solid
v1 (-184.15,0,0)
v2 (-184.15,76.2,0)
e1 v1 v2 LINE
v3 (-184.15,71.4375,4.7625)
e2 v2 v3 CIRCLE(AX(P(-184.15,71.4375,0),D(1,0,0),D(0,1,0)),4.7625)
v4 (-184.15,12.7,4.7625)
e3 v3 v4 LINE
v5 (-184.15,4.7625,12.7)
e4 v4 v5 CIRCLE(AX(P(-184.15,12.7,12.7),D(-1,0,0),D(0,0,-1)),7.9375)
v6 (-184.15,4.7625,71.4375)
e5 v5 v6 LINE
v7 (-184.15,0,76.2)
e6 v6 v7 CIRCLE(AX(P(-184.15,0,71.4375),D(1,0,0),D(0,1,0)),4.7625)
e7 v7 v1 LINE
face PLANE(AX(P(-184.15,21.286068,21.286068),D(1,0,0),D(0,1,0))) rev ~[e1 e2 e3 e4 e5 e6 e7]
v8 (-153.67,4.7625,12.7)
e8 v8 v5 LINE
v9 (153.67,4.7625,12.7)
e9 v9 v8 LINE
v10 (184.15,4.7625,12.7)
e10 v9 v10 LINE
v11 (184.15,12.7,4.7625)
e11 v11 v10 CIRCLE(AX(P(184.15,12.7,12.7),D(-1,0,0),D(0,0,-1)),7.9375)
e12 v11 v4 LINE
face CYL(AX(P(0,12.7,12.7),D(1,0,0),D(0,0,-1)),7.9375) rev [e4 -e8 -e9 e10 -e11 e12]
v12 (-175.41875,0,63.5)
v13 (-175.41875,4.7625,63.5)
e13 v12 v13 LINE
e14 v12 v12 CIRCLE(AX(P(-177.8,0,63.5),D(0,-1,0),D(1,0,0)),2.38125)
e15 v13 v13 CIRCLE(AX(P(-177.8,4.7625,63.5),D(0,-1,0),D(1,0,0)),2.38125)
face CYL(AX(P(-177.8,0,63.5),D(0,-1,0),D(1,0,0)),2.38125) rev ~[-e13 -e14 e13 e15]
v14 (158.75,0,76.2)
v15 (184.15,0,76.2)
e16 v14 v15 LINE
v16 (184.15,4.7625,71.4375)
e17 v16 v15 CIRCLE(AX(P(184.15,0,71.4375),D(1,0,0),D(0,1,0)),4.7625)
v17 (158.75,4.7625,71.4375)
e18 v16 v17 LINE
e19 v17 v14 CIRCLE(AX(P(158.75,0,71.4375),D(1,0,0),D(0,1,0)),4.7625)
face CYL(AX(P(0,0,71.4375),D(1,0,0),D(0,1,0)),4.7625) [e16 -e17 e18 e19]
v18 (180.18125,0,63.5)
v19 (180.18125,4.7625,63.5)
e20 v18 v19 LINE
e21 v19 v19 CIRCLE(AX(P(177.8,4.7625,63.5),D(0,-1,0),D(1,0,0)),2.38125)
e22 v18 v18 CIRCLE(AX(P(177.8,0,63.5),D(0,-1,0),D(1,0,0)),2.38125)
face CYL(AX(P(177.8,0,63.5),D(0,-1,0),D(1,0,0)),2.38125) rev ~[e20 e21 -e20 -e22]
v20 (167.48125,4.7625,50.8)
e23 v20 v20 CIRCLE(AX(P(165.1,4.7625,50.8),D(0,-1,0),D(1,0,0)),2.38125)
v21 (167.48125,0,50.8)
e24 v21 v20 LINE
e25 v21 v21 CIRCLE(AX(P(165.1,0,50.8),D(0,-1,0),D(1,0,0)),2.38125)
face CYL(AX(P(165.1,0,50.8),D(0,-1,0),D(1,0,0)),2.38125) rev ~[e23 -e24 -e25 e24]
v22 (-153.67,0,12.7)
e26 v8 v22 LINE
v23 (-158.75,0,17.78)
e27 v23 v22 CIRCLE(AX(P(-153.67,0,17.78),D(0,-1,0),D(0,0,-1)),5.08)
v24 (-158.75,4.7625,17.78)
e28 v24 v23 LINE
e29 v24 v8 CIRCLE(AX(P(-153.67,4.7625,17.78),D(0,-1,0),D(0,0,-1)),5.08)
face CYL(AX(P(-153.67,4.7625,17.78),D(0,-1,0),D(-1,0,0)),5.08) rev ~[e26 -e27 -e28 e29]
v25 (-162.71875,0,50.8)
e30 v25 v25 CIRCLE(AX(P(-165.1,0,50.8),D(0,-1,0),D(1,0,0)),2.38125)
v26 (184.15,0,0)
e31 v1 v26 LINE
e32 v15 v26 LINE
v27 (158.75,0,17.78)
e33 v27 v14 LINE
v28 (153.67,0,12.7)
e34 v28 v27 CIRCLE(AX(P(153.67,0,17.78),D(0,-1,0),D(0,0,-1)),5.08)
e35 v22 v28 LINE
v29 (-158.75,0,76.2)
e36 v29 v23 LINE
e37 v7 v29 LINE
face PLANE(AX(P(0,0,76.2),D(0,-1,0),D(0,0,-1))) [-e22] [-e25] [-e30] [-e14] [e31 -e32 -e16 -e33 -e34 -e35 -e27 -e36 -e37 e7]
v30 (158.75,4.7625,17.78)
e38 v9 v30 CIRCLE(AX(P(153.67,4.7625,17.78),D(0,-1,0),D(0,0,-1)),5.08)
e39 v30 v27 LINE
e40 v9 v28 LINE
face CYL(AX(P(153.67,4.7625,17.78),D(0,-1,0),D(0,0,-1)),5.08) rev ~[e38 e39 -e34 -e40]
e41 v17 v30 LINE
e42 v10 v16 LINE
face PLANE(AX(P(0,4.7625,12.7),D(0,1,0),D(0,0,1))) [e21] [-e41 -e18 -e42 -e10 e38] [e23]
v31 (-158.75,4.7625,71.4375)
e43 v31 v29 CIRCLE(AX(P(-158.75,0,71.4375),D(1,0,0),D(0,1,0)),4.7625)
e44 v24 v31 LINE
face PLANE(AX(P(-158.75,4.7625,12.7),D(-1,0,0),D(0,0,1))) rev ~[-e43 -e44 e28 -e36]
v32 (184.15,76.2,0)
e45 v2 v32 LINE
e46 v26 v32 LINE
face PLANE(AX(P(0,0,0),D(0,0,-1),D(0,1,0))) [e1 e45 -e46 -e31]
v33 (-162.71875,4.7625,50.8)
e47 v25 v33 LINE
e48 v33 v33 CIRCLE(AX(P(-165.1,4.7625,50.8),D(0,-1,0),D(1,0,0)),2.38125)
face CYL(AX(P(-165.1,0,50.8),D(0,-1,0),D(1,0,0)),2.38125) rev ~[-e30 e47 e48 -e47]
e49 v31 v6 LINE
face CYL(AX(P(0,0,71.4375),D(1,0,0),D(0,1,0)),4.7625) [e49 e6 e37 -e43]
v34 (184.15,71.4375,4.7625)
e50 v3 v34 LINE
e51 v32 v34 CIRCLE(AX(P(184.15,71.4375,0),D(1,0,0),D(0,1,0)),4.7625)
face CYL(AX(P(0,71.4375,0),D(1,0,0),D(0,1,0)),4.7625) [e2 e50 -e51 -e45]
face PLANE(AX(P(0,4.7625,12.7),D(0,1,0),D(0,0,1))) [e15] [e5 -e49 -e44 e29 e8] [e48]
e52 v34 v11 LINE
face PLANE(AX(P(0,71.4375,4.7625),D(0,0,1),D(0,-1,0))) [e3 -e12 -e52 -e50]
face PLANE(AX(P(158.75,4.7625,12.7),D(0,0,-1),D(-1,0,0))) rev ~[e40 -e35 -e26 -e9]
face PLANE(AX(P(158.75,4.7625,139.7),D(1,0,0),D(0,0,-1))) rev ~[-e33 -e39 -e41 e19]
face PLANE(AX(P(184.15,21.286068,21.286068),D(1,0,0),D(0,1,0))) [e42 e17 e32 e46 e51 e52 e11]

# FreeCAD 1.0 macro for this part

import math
import FreeCAD as App
import Part
import Sketcher
Q = App.Units.Quantity


def edges_at(feature, points):
    """Names of the edges that pass closest to the given points."""
    edges = feature.Shape.Edges
    near = lambda p: min(range(len(edges)), key=lambda i: edges[i].distToShape(Part.Vertex(*p))[0])
    return sorted({f"Edge{near(p) + 1}" for p in points})

doc = App.newDocument("Part")
body = doc.addObject("PartDesign::Body", "Body")

# Sketch on YZ plane
sketch1 = body.newObject("Sketcher::SketchObject", "Sketch")
sketch1.AttachmentSupport = (doc.getObject("YZ_Plane"), [""])
sketch1.MapMode = "FlatFace"
sketch1.addGeometry([
    Part.ArcOfCircle(Part.Circle(App.Vector(0, 71.4375, 0), App.Vector(0, 0, 1), 4.7625), math.radians(0), math.radians(90)),  # 0
    Part.LineSegment(App.Vector(0, 76.2, 0), App.Vector(0, 0, 0)),  # 1
    Part.LineSegment(App.Vector(0, 0, 0), App.Vector(76.2, 0, 0)),  # 2
    Part.ArcOfCircle(Part.Circle(App.Vector(71.4375, 0, 0), App.Vector(0, 0, 1), 4.7625), math.radians(0), math.radians(90)),  # 3
    Part.LineSegment(App.Vector(71.4375, 4.7625, 0), App.Vector(12.7, 4.7625, 0)),  # 4
    Part.ArcOfCircle(Part.Circle(App.Vector(12.7, 12.7, 0), App.Vector(0, 0, 1), 7.9375), math.radians(180), math.radians(270)),  # 5
    Part.LineSegment(App.Vector(4.7625, 12.7, 0), App.Vector(4.7625, 71.4375, 0)),  # 6
], False)
sketch1.addConstraint([
    Sketcher.Constraint("Coincident", 0, 2, 1, 1),
    Sketcher.Constraint("Coincident", 1, 2, 2, 1),
    Sketcher.Constraint("Coincident", 2, 2, 3, 1),
    Sketcher.Constraint("Tangent", 3, 2, 4, 1),
    Sketcher.Constraint("Tangent", 4, 2, 5, 2),
    Sketcher.Constraint("Tangent", 5, 1, 6, 1),
    Sketcher.Constraint("Tangent", 6, 2, 0, 1),
    Sketcher.Constraint("Vertical", 1),
    Sketcher.Constraint("Horizontal", 2),
    Sketcher.Constraint("Horizontal", 4),
    Sketcher.Constraint("Vertical", 6),
    Sketcher.Constraint("Coincident", 1, 2, -1, 1),
    Sketcher.Constraint("Equal", 0, 3),
    Sketcher.Constraint("PointOnObject", 0, 3, -2),
    Sketcher.Constraint("PointOnObject", 3, 3, -1),
    Sketcher.Constraint("Equal", 2, 1),
    Sketcher.Constraint("DistanceX", 2, 1, 2, 2, Q("3 in")),
    Sketcher.Constraint("Radius", 0, Q("0.1875 in")),
    Sketcher.Constraint("Radius", 5, Q("0.3125 in")),
])
pad1 = body.newObject("PartDesign::Pad", "Pad")
pad1.Profile = sketch1
pad1.Length = Q("14.5 in")
pad1.Midplane = True

# Sketch on XZ plane
sketch2 = body.newObject("Sketcher::SketchObject", "Sketch001")
sketch2.AttachmentSupport = (doc.getObject("XZ_Plane"), [""])
sketch2.MapMode = "FlatFace"
sketch2.AttachmentOffset = App.Placement(App.Vector(0, 0, -0.1875 * 25.4), App.Rotation())
sketch2.addGeometry([
    Part.LineSegment(App.Vector(158.75, 139.7, 0), App.Vector(158.75, 12.7, 0)),
    Part.LineSegment(App.Vector(158.75, 12.7, 0), App.Vector(-158.75, 12.7, 0)),
    Part.LineSegment(App.Vector(-158.75, 12.7, 0), App.Vector(-158.75, 139.7, 0)),
    Part.LineSegment(App.Vector(-158.75, 139.7, 0), App.Vector(158.75, 139.7, 0)),
], False)
sketch2.addConstraint([
    Sketcher.Constraint("Coincident", 0, 2, 1, 1),
    Sketcher.Constraint("Coincident", 1, 2, 2, 1),
    Sketcher.Constraint("Coincident", 2, 2, 3, 1),
    Sketcher.Constraint("Coincident", 3, 2, 0, 1),
    Sketcher.Constraint("Vertical", 0),
    Sketcher.Constraint("Horizontal", 1),
    Sketcher.Constraint("Vertical", 2),
    Sketcher.Constraint("Horizontal", 3),
    Sketcher.Constraint("DistanceY", 0, 2, 0, 1, Q("5 in")),
    Sketcher.Constraint("DistanceX", 1, 2, 1, 1, Q("12.5 in")),
    Sketcher.Constraint("DistanceY", -1, 1, 0, 2, Q("0.5 in")),
    Sketcher.Constraint("DistanceX", -1, 1, 0, 2, Q("6.25 in")),
])
pocket1 = body.newObject("PartDesign::Pocket", "Pocket")
pocket1.Profile = sketch2
pocket1.Type = "ThroughAll"
pocket1.Reversed = True
doc.recompute()

fillet = body.newObject("PartDesign::Fillet", "Fillet")
fillet.Base = (pocket1, edges_at(pocket1, [(158.75, 2.381, 12.7), (-158.75, 2.381, 12.7)]))
fillet.Radius = Q("0.2 in")

# Sketch on XZ plane
sketch3 = body.newObject("Sketcher::SketchObject", "Sketch002")
sketch3.AttachmentSupport = (doc.getObject("XZ_Plane"), [""])
sketch3.MapMode = "FlatFace"
sketch3.addGeometry([
    Part.Circle(App.Vector(-165.1, 50.8, 0), App.Vector(0, 0, 1), 2.38125),
    Part.Circle(App.Vector(-177.8, 63.5, 0), App.Vector(0, 0, 1), 2.38125),
    Part.Circle(App.Vector(177.8, 63.5, 0), App.Vector(0, 0, 1), 2.38125),
    Part.Circle(App.Vector(165.1, 50.8, 0), App.Vector(0, 0, 1), 2.38125),
], False)
sketch3.addConstraint([
    Sketcher.Constraint("Equal", 0, 1),
    Sketcher.Constraint("Equal", 1, 2),
    Sketcher.Constraint("Equal", 2, 3),
    Sketcher.Constraint("Symmetric", 1, 3, 2, 3, -2),
    Sketcher.Constraint("Symmetric", 0, 3, 3, 3, -2),
    Sketcher.Constraint("Diameter", 0, Q("0.1875 in")),
    Sketcher.Constraint("DistanceY", -1, 1, 0, 3, Q("2 in")),
    Sketcher.Constraint("DistanceX", 1, 3, -1, 1, Q("7 in")),
    Sketcher.Constraint("DistanceX", 0, 3, 3, 3, Q("13 in")),
    Sketcher.Constraint("DistanceY", -1, 1, 1, 3, Q("2.5 in")),
])
pocket2 = body.newObject("PartDesign::Pocket", "Pocket001")
pocket2.Profile = sketch3
pocket2.Type = "ThroughAll"

doc.recompute()
